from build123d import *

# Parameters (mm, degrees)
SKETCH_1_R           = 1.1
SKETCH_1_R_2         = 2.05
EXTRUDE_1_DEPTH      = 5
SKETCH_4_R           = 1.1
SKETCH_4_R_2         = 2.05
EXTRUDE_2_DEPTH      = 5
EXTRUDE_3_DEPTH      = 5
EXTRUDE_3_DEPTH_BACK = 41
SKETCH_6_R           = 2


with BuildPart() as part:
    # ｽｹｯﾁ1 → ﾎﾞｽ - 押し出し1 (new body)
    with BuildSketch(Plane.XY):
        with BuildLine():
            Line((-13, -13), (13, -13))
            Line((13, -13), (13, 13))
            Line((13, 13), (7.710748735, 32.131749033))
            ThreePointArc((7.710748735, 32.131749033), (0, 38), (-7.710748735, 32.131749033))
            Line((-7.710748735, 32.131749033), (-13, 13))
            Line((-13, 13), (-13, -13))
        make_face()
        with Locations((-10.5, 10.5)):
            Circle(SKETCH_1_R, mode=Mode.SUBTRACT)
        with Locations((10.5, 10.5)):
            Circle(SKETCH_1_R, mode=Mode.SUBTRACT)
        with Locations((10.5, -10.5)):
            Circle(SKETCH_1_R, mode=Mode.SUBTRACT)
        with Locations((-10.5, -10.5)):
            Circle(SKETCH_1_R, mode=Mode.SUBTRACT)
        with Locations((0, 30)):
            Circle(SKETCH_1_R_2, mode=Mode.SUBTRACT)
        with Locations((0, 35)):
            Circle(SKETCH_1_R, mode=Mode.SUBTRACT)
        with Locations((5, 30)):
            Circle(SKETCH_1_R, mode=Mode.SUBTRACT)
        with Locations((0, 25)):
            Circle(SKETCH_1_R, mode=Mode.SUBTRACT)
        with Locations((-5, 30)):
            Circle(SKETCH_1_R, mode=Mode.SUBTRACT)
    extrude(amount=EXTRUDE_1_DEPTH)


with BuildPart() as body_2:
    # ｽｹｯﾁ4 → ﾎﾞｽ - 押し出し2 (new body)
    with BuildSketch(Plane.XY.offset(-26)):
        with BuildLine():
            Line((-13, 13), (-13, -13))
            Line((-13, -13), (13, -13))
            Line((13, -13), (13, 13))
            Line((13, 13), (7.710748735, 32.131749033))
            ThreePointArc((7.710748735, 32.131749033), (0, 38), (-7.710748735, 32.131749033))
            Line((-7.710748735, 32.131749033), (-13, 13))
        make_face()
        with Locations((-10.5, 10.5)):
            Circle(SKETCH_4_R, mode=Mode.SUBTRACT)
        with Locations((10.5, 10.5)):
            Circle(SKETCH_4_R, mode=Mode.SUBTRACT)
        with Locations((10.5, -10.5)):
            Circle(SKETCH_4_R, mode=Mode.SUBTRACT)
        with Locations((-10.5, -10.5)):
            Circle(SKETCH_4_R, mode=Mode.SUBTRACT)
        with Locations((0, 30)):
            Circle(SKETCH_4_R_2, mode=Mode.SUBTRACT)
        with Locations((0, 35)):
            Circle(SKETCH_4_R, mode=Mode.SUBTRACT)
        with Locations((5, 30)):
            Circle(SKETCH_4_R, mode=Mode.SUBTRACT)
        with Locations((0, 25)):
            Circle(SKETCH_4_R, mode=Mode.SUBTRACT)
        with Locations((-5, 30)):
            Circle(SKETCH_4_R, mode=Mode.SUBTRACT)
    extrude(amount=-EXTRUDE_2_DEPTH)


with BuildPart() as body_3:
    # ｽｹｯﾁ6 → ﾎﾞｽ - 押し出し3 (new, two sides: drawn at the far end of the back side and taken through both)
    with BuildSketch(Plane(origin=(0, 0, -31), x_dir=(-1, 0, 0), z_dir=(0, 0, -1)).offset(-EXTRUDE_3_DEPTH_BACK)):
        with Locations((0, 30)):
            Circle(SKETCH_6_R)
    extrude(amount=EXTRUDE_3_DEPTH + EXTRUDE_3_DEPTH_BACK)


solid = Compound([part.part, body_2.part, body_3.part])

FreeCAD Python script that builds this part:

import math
import FreeCAD as App
import Part
import Sketcher

doc = App.newDocument("Part")
params = doc.addObject("Spreadsheet::Sheet", "Params")
for row, (alias, value) in enumerate([
    ("sketch1_radius", "8 mm"),
    ("sketch1_diameter", "2.2 mm"),
    ("sketch1_diameter2", "4.1 mm"),
    ("sketch1_width", "26 mm"),
    ("pad1_length", "5 mm"),
    ("sketch2_radius", "8 mm"),
    ("sketch2_diameter", "2.2 mm"),
    ("sketch2_diameter2", "4.1 mm"),
    ("sketch2_width", "26 mm"),
    ("pad2_length", "5 mm"),
    ("sketch3_diameter", "4 mm"),
    ("pad3_length", "5 mm"),
    ("pad3_length2", "41 mm"),
], start=1):
    params.set(f"A{row}", alias)
    params.set(f"B{row}", "=" + value)
    params.setAlias(f"B{row}", alias)

body = doc.addObject("PartDesign::Body", "Body")

# Sketch on XY plane
sketch1 = body.newObject("Sketcher::SketchObject", "Sketch")
sketch1.AttachmentSupport = (doc.getObject("XY_Plane"), [""])
sketch1.MapMode = "FlatFace"
sketch1.addGeometry([
    Part.LineSegment(App.Vector(-13, -13, 0), App.Vector(13, -13, 0)),  # 0
    Part.LineSegment(App.Vector(13, -13, 0), App.Vector(13, 13, 0)),  # 1
    Part.LineSegment(App.Vector(13, 13, 0), App.Vector(7.7, 32.1, 0)),  # 2
    Part.ArcOfCircle(Part.Circle(App.Vector(0, 30, 0), App.Vector(0, 0, 1), 8), math.radians(15), math.radians(165)),  # 3
    Part.LineSegment(App.Vector(-7.7, 32.1, 0), App.Vector(-13, 13, 0)),  # 4
    Part.LineSegment(App.Vector(-13, 13, 0), App.Vector(-13, -13, 0)),  # 5
    Part.Circle(App.Vector(-10.5, -10.5, 0), App.Vector(0, 0, 1), 1.1),  # 6
    Part.Circle(App.Vector(-10.5, 10.5, 0), App.Vector(0, 0, 1), 1.1),  # 7
    Part.Circle(App.Vector(10.5, -10.5, 0), App.Vector(0, 0, 1), 1.1),  # 8
    Part.Circle(App.Vector(10.5, 10.5, 0), App.Vector(0, 0, 1), 1.1),  # 9
    Part.Circle(App.Vector(-5, 30, 0), App.Vector(0, 0, 1), 1.1),  # 10
    Part.Circle(App.Vector(0, 25, 0), App.Vector(0, 0, 1), 1.1),  # 11
    Part.Circle(App.Vector(0, 30, 0), App.Vector(0, 0, 1), 2),  # 12
    Part.Circle(App.Vector(5, 30, 0), App.Vector(0, 0, 1), 1.1),  # 13
    Part.Circle(App.Vector(0, 35, 0), App.Vector(0, 0, 1), 1.1),  # 14
], False)
sketch1.addConstraint([
    Sketcher.Constraint("Coincident", 0, 2, 1, 1),
    Sketcher.Constraint("Coincident", 1, 2, 2, 1),
    Sketcher.Constraint("Tangent", 2, 2, 3, 1),
    Sketcher.Constraint("Tangent", 3, 2, 4, 1),
    Sketcher.Constraint("Coincident", 4, 2, 5, 1),
    Sketcher.Constraint("Coincident", 5, 2, 0, 1),
    Sketcher.Constraint("Horizontal", 0),
    Sketcher.Constraint("Vertical", 1),
    Sketcher.Constraint("Vertical", 5),
    Sketcher.Constraint("Coincident", 12, 3, 3, 3),
    Sketcher.Constraint("Equal", 6, 7),
    Sketcher.Constraint("Equal", 7, 8),
    Sketcher.Constraint("Equal", 8, 9),
    Sketcher.Constraint("Equal", 9, 10),
    Sketcher.Constraint("Equal", 10, 11),
    Sketcher.Constraint("Equal", 11, 13),
    Sketcher.Constraint("Equal", 13, 14),
    Sketcher.Constraint("Symmetric", 7, 3, 8, 3, -1, 1),
    Sketcher.Constraint("Symmetric", 6, 3, 9, 3, -1, 1),
    Sketcher.Constraint("Symmetric", 0, 2, 4, 2, -1, 1),
    Sketcher.Constraint("Symmetric", 6, 3, 8, 3, -2),
    Sketcher.Constraint("Symmetric", 10, 3, 13, 3, -2),
    Sketcher.Constraint("Symmetric", 2, 2, 3, 2, -2),
    Sketcher.Constraint("PointOnObject", 11, 3, -2),
    Sketcher.Constraint("PointOnObject", 14, 3, -2),
    Sketcher.Constraint("Horizontal", 3, 3, 10, 3),
    Sketcher.Constraint("Equal", 0, 1),
    Sketcher.Constraint("Radius", 3, 8.0),
    Sketcher.Constraint("Diameter", 6, 2.2),
    Sketcher.Constraint("Diameter", 12, 4.1),
    Sketcher.Constraint("DistanceX", 0, 1, 0, 2, 26.0),
    Sketcher.Constraint("DistanceY", -1, 1, 3, 3, 30.0),
    Sketcher.Constraint("DistanceX", 10, 3, -1, 1, 5.0),
    Sketcher.Constraint("DistanceY", -1, 1, 11, 3, 25.0),
    Sketcher.Constraint("DistanceY", -1, 1, 14, 3, 35.0),
    Sketcher.Constraint("DistanceY", 6, 3, 7, 3, 21.0),
    Sketcher.Constraint("DistanceX", 6, 3, 8, 3, 21.0),
])
sketch1.setExpression("Constraints[27]", "Params.sketch1_radius")
sketch1.setExpression("Constraints[28]", "Params.sketch1_diameter")
sketch1.setExpression("Constraints[29]", "Params.sketch1_diameter2")
sketch1.setExpression("Constraints[30]", "Params.sketch1_width")
pad1 = body.newObject("PartDesign::Pad", "Pad")
pad1.Profile = sketch1
pad1.setExpression("Length", "Params.pad1_length")
body2 = doc.addObject("PartDesign::Body", "Body001")

# Sketch on XY plane
sketch2 = body2.newObject("Sketcher::SketchObject", "Sketch001")
sketch2.AttachmentSupport = (doc.getObject("XY_Plane001"), [""])
sketch2.MapMode = "FlatFace"
sketch2.AttachmentOffset = App.Placement(App.Vector(0, 0, -26), App.Rotation())
sketch2.addGeometry([
    Part.LineSegment(App.Vector(-13, 13, 0), App.Vector(-13, -13, 0)),  # 0
    Part.LineSegment(App.Vector(-13, -13, 0), App.Vector(13, -13, 0)),  # 1
    Part.LineSegment(App.Vector(13, -13, 0), App.Vector(13, 13, 0)),  # 2
    Part.LineSegment(App.Vector(13, 13, 0), App.Vector(7.7, 32.1, 0)),  # 3
    Part.ArcOfCircle(Part.Circle(App.Vector(0, 30, 0), App.Vector(0, 0, 1), 8), math.radians(15), math.radians(165)),  # 4
    Part.LineSegment(App.Vector(-7.7, 32.1, 0), App.Vector(-13, 13, 0)),  # 5
    Part.Circle(App.Vector(-10.5, -10.5, 0), App.Vector(0, 0, 1), 1.1),  # 6
    Part.Circle(App.Vector(-10.5, 10.5, 0), App.Vector(0, 0, 1), 1.1),  # 7
    Part.Circle(App.Vector(10.5, -10.5, 0), App.Vector(0, 0, 1), 1.1),  # 8
    Part.Circle(App.Vector(10.5, 10.5, 0), App.Vector(0, 0, 1), 1.1),  # 9
    Part.Circle(App.Vector(-5, 30, 0), App.Vector(0, 0, 1), 1.1),  # 10
    Part.Circle(App.Vector(0, 25, 0), App.Vector(0, 0, 1), 1.1),  # 11
    Part.Circle(App.Vector(0, 30, 0), App.Vector(0, 0, 1), 2),  # 12
    Part.Circle(App.Vector(5, 30, 0), App.Vector(0, 0, 1), 1.1),  # 13
    Part.Circle(App.Vector(0, 35, 0), App.Vector(0, 0, 1), 1.1),  # 14
], False)
sketch2.addConstraint([
    Sketcher.Constraint("Coincident", 0, 2, 1, 1),
    Sketcher.Constraint("Coincident", 1, 2, 2, 1),
    Sketcher.Constraint("Coincident", 2, 2, 3, 1),
    Sketcher.Constraint("Tangent", 3, 2, 4, 1),
    Sketcher.Constraint("Tangent", 4, 2, 5, 1),
    Sketcher.Constraint("Coincident", 5, 2, 0, 1),
    Sketcher.Constraint("Vertical", 0),
    Sketcher.Constraint("Horizontal", 1),
    Sketcher.Constraint("Vertical", 2),
    Sketcher.Constraint("Coincident", 12, 3, 4, 3),
    Sketcher.Constraint("Equal", 6, 7),
    Sketcher.Constraint("Equal", 7, 8),
    Sketcher.Constraint("Equal", 8, 9),
    Sketcher.Constraint("Equal", 9, 10),
    Sketcher.Constraint("Equal", 10, 11),
    Sketcher.Constraint("Equal", 11, 13),
    Sketcher.Constraint("Equal", 13, 14),
    Sketcher.Constraint("Symmetric", 7, 3, 8, 3, -1, 1),
    Sketcher.Constraint("Symmetric", 6, 3, 9, 3, -1, 1),
    Sketcher.Constraint("Symmetric", 0, 2, 2, 2, -1, 1),
    Sketcher.Constraint("Symmetric", 6, 3, 8, 3, -2),
    Sketcher.Constraint("Symmetric", 10, 3, 13, 3, -2),
    Sketcher.Constraint("Symmetric", 3, 2, 4, 2, -2),
    Sketcher.Constraint("PointOnObject", 11, 3, -2),
    Sketcher.Constraint("PointOnObject", 14, 3, -2),
    Sketcher.Constraint("Horizontal", 4, 3, 10, 3),
    Sketcher.Constraint("Equal", 1, 0),
    Sketcher.Constraint("Radius", 4, 8.0),
    Sketcher.Constraint("Diameter", 6, 2.2),
    Sketcher.Constraint("Diameter", 12, 4.1),
    Sketcher.Constraint("DistanceX", 1, 1, 1, 2, 26.0),
    Sketcher.Constraint("DistanceY", -1, 1, 4, 3, 30.0),
    Sketcher.Constraint("DistanceX", 10, 3, -1, 1, 5.0),
    Sketcher.Constraint("DistanceY", -1, 1, 11, 3, 25.0),
    Sketcher.Constraint("DistanceY", -1, 1, 14, 3, 35.0),
    Sketcher.Constraint("DistanceY", 6, 3, 7, 3, 21.0),
    Sketcher.Constraint("DistanceX", 6, 3, 8, 3, 21.0),
])
sketch2.setExpression("Constraints[27]", "Params.sketch2_radius")
sketch2.setExpression("Constraints[28]", "Params.sketch2_diameter")
sketch2.setExpression("Constraints[29]", "Params.sketch2_diameter2")
sketch2.setExpression("Constraints[30]", "Params.sketch2_width")
pad2 = body2.newObject("PartDesign::Pad", "Pad001")
pad2.Profile = sketch2
pad2.setExpression("Length", "Params.pad2_length")
pad2.Reversed = True
body3 = doc.addObject("PartDesign::Body", "Body002")

# Sketch on XY plane
sketch3 = body3.newObject("Sketcher::SketchObject", "Sketch002")
sketch3.AttachmentSupport = (doc.getObject("XY_Plane002"), [""])
sketch3.MapMode = "FlatFace"
sketch3.AttachmentOffset = App.Placement(App.Vector(0, 0, -31), App.Rotation())
sketch3.addGeometry(Part.Circle(App.Vector(0, 30, 0), App.Vector(0, 0, 1), 2), False)
sketch3.addConstraint([
    Sketcher.Constraint("PointOnObject", 0, 3, -2),
    Sketcher.Constraint("Diameter", 0, 4.0),
    Sketcher.Constraint("DistanceY", -1, 1, 0, 3, 30.0),
])
sketch3.setExpression("Constraints[1]", "Params.sketch3_diameter")
pad3 = body3.newObject("PartDesign::Pad", "Pad002")
pad3.Profile = sketch3
pad3.Type = "TwoLengths"
pad3.setExpression("Length", "Params.pad3_length")
pad3.setExpression("Length2", "Params.pad3_length2")
pad3.Reversed = True

doc.recompute()
